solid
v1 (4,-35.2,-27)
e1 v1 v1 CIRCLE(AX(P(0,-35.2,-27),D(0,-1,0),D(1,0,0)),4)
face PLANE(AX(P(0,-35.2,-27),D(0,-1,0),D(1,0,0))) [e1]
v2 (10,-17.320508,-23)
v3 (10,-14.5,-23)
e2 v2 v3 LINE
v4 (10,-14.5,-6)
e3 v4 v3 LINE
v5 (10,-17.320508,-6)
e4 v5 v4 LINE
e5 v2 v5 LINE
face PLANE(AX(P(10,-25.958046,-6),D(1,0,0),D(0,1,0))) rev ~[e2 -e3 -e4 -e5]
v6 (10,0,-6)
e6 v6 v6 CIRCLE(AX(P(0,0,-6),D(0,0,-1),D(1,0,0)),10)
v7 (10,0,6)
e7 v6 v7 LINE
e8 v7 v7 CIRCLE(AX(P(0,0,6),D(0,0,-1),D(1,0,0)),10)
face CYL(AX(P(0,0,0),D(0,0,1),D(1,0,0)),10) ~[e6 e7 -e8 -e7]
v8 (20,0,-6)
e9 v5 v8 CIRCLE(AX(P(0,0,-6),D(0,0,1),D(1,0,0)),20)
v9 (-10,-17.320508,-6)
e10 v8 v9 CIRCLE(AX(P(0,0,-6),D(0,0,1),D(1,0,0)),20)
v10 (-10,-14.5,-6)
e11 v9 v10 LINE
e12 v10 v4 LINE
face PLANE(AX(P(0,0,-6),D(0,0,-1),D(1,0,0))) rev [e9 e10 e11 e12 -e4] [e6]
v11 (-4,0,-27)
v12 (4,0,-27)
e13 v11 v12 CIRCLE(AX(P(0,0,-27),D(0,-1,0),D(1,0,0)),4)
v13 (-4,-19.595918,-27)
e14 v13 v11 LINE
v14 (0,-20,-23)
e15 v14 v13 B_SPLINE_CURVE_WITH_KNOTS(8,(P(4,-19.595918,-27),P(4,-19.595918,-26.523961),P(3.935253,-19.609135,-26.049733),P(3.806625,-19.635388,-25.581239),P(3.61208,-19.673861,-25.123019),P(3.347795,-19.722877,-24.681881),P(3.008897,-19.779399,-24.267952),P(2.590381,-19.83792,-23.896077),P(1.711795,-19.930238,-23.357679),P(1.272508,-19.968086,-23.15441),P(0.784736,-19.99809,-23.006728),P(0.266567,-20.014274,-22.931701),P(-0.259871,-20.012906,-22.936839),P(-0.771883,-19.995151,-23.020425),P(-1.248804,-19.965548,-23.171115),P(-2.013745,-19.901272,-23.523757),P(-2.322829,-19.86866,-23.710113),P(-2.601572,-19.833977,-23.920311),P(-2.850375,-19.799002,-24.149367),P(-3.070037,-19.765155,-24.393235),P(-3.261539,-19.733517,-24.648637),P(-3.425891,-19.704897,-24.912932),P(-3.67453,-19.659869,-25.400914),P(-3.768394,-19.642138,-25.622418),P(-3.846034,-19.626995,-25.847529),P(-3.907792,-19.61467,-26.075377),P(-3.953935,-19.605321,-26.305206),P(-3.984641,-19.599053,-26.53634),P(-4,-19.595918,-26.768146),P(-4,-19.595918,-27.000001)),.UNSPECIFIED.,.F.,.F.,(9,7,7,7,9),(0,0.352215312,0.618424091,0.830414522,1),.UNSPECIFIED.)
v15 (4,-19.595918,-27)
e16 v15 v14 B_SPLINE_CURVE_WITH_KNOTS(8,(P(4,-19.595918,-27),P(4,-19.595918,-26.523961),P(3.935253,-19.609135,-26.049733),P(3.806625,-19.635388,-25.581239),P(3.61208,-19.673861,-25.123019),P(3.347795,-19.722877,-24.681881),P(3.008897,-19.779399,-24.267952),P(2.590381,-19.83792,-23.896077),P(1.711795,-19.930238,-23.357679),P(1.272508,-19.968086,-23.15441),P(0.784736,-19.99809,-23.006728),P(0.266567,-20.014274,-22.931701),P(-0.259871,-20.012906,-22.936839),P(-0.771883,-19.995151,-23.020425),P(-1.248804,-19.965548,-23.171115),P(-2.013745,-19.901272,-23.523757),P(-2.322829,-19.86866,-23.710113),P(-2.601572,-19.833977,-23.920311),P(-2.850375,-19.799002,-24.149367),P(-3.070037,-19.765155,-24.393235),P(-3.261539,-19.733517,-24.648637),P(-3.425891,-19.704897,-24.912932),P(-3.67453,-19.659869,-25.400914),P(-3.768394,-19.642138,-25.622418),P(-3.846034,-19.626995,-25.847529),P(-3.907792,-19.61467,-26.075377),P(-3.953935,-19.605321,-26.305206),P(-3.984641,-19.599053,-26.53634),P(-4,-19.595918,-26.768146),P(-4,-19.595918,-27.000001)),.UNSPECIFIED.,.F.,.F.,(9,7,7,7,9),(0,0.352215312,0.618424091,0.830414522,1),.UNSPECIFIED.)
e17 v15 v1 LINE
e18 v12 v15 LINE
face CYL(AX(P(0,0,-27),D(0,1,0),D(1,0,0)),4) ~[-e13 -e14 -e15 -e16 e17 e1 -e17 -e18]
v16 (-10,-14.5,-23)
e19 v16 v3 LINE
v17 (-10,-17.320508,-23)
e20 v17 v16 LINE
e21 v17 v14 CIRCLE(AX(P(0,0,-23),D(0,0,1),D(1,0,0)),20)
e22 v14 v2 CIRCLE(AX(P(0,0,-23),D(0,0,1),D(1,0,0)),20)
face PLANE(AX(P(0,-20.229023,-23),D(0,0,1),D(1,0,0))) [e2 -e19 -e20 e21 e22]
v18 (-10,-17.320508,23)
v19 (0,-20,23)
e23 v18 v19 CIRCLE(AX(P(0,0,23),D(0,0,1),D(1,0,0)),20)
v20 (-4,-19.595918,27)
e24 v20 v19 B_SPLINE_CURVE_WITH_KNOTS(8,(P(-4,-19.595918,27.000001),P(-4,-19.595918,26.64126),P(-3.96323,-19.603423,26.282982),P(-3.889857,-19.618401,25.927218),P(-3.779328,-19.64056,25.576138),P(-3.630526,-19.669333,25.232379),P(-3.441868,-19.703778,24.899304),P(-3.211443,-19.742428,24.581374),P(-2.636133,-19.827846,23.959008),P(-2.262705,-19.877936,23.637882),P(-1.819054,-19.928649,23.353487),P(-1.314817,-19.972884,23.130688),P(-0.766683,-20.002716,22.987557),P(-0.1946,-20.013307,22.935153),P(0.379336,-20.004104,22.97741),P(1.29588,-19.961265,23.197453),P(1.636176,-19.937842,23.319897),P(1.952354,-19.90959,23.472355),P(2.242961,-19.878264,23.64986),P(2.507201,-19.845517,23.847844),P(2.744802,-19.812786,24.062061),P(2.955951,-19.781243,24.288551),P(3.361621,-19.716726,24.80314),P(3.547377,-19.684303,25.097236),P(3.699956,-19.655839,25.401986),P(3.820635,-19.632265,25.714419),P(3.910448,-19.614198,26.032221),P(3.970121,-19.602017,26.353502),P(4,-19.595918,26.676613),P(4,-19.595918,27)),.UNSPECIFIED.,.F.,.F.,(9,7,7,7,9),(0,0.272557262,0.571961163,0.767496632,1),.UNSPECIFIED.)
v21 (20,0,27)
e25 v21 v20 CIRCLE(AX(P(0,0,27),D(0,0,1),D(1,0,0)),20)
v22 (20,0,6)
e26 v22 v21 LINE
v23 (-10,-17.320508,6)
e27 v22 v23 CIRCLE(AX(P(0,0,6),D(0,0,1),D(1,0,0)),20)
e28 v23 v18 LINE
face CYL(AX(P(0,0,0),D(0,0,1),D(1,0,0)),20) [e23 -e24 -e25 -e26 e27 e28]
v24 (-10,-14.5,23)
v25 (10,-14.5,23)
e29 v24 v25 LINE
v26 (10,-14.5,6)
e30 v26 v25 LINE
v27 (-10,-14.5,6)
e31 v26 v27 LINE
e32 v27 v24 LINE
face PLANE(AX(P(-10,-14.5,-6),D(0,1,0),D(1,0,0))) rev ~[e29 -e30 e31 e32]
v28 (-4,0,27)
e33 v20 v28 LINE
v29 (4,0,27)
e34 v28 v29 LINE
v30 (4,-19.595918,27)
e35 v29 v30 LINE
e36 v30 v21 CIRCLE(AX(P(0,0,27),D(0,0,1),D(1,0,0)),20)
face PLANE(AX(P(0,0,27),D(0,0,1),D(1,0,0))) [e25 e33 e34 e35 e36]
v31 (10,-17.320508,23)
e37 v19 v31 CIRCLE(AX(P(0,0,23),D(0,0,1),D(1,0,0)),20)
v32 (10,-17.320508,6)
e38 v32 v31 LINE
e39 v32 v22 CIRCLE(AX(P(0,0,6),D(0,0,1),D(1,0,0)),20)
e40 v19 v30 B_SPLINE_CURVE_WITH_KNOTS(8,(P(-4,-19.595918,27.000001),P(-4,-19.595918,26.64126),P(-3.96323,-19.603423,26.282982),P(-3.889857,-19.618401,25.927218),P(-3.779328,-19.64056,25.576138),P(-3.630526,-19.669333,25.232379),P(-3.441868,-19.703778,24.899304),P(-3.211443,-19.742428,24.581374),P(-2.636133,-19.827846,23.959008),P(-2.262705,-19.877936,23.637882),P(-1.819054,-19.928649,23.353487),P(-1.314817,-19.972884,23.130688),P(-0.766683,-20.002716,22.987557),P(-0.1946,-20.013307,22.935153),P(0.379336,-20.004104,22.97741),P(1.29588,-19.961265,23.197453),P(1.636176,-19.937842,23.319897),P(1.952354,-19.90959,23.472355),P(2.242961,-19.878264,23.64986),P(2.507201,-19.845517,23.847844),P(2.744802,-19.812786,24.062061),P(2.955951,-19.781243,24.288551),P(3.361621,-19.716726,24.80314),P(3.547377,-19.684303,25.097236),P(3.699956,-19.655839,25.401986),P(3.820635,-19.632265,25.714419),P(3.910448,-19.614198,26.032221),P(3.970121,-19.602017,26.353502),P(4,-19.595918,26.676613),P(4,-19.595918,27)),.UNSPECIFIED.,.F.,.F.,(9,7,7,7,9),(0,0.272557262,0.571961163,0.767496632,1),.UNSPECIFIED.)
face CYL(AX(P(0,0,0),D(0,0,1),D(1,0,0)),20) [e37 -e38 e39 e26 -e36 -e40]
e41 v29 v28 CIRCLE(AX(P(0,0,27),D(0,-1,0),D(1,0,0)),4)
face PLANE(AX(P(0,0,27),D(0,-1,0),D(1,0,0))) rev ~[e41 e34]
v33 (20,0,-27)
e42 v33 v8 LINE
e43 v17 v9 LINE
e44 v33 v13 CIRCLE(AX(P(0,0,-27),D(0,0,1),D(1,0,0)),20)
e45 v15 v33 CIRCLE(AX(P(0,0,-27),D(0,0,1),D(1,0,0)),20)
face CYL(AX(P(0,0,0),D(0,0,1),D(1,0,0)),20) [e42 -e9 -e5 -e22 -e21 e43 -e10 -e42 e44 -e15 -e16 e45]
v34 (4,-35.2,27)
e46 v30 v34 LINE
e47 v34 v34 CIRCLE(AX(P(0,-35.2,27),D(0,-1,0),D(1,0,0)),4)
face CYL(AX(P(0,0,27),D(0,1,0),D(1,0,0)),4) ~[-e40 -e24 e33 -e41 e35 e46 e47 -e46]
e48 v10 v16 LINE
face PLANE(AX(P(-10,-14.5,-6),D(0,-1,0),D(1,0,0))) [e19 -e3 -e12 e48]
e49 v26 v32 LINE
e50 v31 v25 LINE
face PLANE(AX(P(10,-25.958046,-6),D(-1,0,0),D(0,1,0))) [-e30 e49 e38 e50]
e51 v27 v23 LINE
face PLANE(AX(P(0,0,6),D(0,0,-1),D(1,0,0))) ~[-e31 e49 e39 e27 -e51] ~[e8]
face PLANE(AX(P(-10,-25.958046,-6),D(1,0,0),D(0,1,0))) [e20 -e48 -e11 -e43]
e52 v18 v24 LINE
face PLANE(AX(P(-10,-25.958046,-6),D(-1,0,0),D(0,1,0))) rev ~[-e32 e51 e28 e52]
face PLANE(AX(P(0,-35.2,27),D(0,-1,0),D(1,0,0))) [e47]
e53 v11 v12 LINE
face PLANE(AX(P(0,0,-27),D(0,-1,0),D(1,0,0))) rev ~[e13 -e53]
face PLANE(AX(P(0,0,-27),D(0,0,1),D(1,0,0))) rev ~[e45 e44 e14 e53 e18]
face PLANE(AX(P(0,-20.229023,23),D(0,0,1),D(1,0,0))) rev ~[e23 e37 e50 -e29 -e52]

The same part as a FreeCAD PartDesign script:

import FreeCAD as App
import Part
import Sketcher

doc = App.newDocument("Part")
params = doc.addObject("Spreadsheet::Sheet", "Params")
for row, (alias, value) in enumerate([
    ("sketch1_diameter", "40 mm"),
    ("pad1_length", "54 mm"),
    ("sketch2_height", "12 mm"),
    ("groove_angle", "360 deg"),
    ("sketch3_diameter", "8 mm"),
    ("pad2_length", "35.2 mm"),
    ("sketch4_width", "20 mm"),
    ("pocket1_length", "17 mm"),
    ("pocket1_length2", "29 mm"),
], start=1):
    params.set(f"A{row}", alias)
    params.set(f"B{row}", "=" + value)
    params.setAlias(f"B{row}", alias)

body = doc.addObject("PartDesign::Body", "Body")

# Sketch on XY plane
sketch1 = body.newObject("Sketcher::SketchObject", "Sketch")
sketch1.AttachmentSupport = (doc.getObject("XY_Plane"), [""])
sketch1.MapMode = "FlatFace"
sketch1.addGeometry(Part.Circle(App.Vector(0, 0, 0), App.Vector(0, 0, 1), 20), False)
sketch1.addConstraint([
    Sketcher.Constraint("Coincident", 0, 3, -1, 1),
    Sketcher.Constraint("Diameter", 0, 40.0),
])
sketch1.setExpression("Constraints[1]", "Params.sketch1_diameter")
pad1 = body.newObject("PartDesign::Pad", "Pad")
pad1.Profile = sketch1
pad1.setExpression("Length", "Params.pad1_length")
pad1.Midplane = True

# Sketch on XZ plane
sketch2 = body.newObject("Sketcher::SketchObject", "Sketch001")
sketch2.AttachmentSupport = (doc.getObject("XZ_Plane"), [""])
sketch2.MapMode = "FlatFace"
sketch2.addGeometry([
    Part.LineSegment(App.Vector(10, 6, 0), App.Vector(10, -6, 0)),
    Part.LineSegment(App.Vector(10, -6, 0), App.Vector(29, -6, 0)),
    Part.LineSegment(App.Vector(29, -6, 0), App.Vector(29, 6, 0)),
    Part.LineSegment(App.Vector(29, 6, 0), App.Vector(10, 6, 0)),
], False)
sketch2.addConstraint([
    Sketcher.Constraint("Coincident", 0, 2, 1, 1),
    Sketcher.Constraint("Coincident", 1, 2, 2, 1),
    Sketcher.Constraint("Coincident", 2, 2, 3, 1),
    Sketcher.Constraint("Coincident", 3, 2, 0, 1),
    Sketcher.Constraint("Vertical", 0),
    Sketcher.Constraint("Horizontal", 1),
    Sketcher.Constraint("Vertical", 2),
    Sketcher.Constraint("Horizontal", 3),
    Sketcher.Constraint("DistanceY", 0, 2, 0, 1, 12.0),
    Sketcher.Constraint("DistanceX", -1, 1, 0, 2, 10.0),
    Sketcher.Constraint("DistanceY", 0, 2, -1, 1, 6.0),
    Sketcher.Constraint("DistanceX", 1, 1, 1, 2, 19.387754),
])
sketch2.setExpression("Constraints[8]", "Params.sketch2_height")
groove = body.newObject("PartDesign::Groove", "Groove")
groove.Profile = sketch2
groove.ReferenceAxis = (sketch2, ["V_Axis"])
groove.setExpression("Angle", "Params.groove_angle")

# Sketch on XZ plane
sketch3 = body.newObject("Sketcher::SketchObject", "Sketch002")
sketch3.AttachmentSupport = (doc.getObject("XZ_Plane"), [""])
sketch3.MapMode = "FlatFace"
sketch3.addGeometry([
    Part.Circle(App.Vector(0, 27, 0), App.Vector(0, 0, 1), 4),
    Part.Circle(App.Vector(0, -27, 0), App.Vector(0, 0, 1), 4),
], False)
sketch3.addConstraint([
    Sketcher.Constraint("Equal", 0, 1),
    Sketcher.Constraint("Symmetric", 0, 3, 1, 3, -1, 1),
    Sketcher.Constraint("PointOnObject", 0, 3, -2),
    Sketcher.Constraint("Diameter", 0, 8.0),
    Sketcher.Constraint("DistanceY", -1, 1, 0, 3, 27.0),
])
sketch3.setExpression("Constraints[3]", "Params.sketch3_diameter")
pad2 = body.newObject("PartDesign::Pad", "Pad001")
pad2.Profile = sketch3
pad2.setExpression("Length", "Params.pad2_length")

# Sketch on XY plane
sketch4 = body.newObject("Sketcher::SketchObject", "Sketch003")
sketch4.AttachmentSupport = (doc.getObject("XY_Plane"), [""])
sketch4.MapMode = "FlatFace"
sketch4.AttachmentOffset = App.Placement(App.Vector(0, 0, -6), App.Rotation())
sketch4.addGeometry([
    Part.LineSegment(App.Vector(-10, -14, 0), App.Vector(-10, -26, 0)),
    Part.LineSegment(App.Vector(-10, -26, 0), App.Vector(10, -26, 0)),
    Part.LineSegment(App.Vector(10, -26, 0), App.Vector(10, -14, 0)),
    Part.LineSegment(App.Vector(10, -14, 0), App.Vector(-10, -14, 0)),
], False)
sketch4.addConstraint([
    Sketcher.Constraint("Coincident", 0, 2, 1, 1),
    Sketcher.Constraint("Coincident", 1, 2, 2, 1),
    Sketcher.Constraint("Coincident", 2, 2, 3, 1),
    Sketcher.Constraint("Coincident", 3, 2, 0, 1),
    Sketcher.Constraint("Vertical", 0),
    Sketcher.Constraint("Horizontal", 1),
    Sketcher.Constraint("Vertical", 2),
    Sketcher.Constraint("Horizontal", 3),
    Sketcher.Constraint("DistanceX", 1, 1, 1, 2, 20.0),
    Sketcher.Constraint("DistanceX", 0, 2, -1, 1, 10.0),
    Sketcher.Constraint("DistanceY", 2, 2, -1, 1, 14.5),
    Sketcher.Constraint("DistanceY", 0, 2, 0, 1, 11.458046),
])
sketch4.setExpression("Constraints[8]", "Params.sketch4_width")
pocket1 = body.newObject("PartDesign::Pocket", "Pocket")
pocket1.Profile = sketch4
pocket1.Type = "TwoLengths"
pocket1.setExpression("Length", "Params.pocket1_length")
pocket1.setExpression("Length2", "Params.pocket1_length2")

doc.recompute()
